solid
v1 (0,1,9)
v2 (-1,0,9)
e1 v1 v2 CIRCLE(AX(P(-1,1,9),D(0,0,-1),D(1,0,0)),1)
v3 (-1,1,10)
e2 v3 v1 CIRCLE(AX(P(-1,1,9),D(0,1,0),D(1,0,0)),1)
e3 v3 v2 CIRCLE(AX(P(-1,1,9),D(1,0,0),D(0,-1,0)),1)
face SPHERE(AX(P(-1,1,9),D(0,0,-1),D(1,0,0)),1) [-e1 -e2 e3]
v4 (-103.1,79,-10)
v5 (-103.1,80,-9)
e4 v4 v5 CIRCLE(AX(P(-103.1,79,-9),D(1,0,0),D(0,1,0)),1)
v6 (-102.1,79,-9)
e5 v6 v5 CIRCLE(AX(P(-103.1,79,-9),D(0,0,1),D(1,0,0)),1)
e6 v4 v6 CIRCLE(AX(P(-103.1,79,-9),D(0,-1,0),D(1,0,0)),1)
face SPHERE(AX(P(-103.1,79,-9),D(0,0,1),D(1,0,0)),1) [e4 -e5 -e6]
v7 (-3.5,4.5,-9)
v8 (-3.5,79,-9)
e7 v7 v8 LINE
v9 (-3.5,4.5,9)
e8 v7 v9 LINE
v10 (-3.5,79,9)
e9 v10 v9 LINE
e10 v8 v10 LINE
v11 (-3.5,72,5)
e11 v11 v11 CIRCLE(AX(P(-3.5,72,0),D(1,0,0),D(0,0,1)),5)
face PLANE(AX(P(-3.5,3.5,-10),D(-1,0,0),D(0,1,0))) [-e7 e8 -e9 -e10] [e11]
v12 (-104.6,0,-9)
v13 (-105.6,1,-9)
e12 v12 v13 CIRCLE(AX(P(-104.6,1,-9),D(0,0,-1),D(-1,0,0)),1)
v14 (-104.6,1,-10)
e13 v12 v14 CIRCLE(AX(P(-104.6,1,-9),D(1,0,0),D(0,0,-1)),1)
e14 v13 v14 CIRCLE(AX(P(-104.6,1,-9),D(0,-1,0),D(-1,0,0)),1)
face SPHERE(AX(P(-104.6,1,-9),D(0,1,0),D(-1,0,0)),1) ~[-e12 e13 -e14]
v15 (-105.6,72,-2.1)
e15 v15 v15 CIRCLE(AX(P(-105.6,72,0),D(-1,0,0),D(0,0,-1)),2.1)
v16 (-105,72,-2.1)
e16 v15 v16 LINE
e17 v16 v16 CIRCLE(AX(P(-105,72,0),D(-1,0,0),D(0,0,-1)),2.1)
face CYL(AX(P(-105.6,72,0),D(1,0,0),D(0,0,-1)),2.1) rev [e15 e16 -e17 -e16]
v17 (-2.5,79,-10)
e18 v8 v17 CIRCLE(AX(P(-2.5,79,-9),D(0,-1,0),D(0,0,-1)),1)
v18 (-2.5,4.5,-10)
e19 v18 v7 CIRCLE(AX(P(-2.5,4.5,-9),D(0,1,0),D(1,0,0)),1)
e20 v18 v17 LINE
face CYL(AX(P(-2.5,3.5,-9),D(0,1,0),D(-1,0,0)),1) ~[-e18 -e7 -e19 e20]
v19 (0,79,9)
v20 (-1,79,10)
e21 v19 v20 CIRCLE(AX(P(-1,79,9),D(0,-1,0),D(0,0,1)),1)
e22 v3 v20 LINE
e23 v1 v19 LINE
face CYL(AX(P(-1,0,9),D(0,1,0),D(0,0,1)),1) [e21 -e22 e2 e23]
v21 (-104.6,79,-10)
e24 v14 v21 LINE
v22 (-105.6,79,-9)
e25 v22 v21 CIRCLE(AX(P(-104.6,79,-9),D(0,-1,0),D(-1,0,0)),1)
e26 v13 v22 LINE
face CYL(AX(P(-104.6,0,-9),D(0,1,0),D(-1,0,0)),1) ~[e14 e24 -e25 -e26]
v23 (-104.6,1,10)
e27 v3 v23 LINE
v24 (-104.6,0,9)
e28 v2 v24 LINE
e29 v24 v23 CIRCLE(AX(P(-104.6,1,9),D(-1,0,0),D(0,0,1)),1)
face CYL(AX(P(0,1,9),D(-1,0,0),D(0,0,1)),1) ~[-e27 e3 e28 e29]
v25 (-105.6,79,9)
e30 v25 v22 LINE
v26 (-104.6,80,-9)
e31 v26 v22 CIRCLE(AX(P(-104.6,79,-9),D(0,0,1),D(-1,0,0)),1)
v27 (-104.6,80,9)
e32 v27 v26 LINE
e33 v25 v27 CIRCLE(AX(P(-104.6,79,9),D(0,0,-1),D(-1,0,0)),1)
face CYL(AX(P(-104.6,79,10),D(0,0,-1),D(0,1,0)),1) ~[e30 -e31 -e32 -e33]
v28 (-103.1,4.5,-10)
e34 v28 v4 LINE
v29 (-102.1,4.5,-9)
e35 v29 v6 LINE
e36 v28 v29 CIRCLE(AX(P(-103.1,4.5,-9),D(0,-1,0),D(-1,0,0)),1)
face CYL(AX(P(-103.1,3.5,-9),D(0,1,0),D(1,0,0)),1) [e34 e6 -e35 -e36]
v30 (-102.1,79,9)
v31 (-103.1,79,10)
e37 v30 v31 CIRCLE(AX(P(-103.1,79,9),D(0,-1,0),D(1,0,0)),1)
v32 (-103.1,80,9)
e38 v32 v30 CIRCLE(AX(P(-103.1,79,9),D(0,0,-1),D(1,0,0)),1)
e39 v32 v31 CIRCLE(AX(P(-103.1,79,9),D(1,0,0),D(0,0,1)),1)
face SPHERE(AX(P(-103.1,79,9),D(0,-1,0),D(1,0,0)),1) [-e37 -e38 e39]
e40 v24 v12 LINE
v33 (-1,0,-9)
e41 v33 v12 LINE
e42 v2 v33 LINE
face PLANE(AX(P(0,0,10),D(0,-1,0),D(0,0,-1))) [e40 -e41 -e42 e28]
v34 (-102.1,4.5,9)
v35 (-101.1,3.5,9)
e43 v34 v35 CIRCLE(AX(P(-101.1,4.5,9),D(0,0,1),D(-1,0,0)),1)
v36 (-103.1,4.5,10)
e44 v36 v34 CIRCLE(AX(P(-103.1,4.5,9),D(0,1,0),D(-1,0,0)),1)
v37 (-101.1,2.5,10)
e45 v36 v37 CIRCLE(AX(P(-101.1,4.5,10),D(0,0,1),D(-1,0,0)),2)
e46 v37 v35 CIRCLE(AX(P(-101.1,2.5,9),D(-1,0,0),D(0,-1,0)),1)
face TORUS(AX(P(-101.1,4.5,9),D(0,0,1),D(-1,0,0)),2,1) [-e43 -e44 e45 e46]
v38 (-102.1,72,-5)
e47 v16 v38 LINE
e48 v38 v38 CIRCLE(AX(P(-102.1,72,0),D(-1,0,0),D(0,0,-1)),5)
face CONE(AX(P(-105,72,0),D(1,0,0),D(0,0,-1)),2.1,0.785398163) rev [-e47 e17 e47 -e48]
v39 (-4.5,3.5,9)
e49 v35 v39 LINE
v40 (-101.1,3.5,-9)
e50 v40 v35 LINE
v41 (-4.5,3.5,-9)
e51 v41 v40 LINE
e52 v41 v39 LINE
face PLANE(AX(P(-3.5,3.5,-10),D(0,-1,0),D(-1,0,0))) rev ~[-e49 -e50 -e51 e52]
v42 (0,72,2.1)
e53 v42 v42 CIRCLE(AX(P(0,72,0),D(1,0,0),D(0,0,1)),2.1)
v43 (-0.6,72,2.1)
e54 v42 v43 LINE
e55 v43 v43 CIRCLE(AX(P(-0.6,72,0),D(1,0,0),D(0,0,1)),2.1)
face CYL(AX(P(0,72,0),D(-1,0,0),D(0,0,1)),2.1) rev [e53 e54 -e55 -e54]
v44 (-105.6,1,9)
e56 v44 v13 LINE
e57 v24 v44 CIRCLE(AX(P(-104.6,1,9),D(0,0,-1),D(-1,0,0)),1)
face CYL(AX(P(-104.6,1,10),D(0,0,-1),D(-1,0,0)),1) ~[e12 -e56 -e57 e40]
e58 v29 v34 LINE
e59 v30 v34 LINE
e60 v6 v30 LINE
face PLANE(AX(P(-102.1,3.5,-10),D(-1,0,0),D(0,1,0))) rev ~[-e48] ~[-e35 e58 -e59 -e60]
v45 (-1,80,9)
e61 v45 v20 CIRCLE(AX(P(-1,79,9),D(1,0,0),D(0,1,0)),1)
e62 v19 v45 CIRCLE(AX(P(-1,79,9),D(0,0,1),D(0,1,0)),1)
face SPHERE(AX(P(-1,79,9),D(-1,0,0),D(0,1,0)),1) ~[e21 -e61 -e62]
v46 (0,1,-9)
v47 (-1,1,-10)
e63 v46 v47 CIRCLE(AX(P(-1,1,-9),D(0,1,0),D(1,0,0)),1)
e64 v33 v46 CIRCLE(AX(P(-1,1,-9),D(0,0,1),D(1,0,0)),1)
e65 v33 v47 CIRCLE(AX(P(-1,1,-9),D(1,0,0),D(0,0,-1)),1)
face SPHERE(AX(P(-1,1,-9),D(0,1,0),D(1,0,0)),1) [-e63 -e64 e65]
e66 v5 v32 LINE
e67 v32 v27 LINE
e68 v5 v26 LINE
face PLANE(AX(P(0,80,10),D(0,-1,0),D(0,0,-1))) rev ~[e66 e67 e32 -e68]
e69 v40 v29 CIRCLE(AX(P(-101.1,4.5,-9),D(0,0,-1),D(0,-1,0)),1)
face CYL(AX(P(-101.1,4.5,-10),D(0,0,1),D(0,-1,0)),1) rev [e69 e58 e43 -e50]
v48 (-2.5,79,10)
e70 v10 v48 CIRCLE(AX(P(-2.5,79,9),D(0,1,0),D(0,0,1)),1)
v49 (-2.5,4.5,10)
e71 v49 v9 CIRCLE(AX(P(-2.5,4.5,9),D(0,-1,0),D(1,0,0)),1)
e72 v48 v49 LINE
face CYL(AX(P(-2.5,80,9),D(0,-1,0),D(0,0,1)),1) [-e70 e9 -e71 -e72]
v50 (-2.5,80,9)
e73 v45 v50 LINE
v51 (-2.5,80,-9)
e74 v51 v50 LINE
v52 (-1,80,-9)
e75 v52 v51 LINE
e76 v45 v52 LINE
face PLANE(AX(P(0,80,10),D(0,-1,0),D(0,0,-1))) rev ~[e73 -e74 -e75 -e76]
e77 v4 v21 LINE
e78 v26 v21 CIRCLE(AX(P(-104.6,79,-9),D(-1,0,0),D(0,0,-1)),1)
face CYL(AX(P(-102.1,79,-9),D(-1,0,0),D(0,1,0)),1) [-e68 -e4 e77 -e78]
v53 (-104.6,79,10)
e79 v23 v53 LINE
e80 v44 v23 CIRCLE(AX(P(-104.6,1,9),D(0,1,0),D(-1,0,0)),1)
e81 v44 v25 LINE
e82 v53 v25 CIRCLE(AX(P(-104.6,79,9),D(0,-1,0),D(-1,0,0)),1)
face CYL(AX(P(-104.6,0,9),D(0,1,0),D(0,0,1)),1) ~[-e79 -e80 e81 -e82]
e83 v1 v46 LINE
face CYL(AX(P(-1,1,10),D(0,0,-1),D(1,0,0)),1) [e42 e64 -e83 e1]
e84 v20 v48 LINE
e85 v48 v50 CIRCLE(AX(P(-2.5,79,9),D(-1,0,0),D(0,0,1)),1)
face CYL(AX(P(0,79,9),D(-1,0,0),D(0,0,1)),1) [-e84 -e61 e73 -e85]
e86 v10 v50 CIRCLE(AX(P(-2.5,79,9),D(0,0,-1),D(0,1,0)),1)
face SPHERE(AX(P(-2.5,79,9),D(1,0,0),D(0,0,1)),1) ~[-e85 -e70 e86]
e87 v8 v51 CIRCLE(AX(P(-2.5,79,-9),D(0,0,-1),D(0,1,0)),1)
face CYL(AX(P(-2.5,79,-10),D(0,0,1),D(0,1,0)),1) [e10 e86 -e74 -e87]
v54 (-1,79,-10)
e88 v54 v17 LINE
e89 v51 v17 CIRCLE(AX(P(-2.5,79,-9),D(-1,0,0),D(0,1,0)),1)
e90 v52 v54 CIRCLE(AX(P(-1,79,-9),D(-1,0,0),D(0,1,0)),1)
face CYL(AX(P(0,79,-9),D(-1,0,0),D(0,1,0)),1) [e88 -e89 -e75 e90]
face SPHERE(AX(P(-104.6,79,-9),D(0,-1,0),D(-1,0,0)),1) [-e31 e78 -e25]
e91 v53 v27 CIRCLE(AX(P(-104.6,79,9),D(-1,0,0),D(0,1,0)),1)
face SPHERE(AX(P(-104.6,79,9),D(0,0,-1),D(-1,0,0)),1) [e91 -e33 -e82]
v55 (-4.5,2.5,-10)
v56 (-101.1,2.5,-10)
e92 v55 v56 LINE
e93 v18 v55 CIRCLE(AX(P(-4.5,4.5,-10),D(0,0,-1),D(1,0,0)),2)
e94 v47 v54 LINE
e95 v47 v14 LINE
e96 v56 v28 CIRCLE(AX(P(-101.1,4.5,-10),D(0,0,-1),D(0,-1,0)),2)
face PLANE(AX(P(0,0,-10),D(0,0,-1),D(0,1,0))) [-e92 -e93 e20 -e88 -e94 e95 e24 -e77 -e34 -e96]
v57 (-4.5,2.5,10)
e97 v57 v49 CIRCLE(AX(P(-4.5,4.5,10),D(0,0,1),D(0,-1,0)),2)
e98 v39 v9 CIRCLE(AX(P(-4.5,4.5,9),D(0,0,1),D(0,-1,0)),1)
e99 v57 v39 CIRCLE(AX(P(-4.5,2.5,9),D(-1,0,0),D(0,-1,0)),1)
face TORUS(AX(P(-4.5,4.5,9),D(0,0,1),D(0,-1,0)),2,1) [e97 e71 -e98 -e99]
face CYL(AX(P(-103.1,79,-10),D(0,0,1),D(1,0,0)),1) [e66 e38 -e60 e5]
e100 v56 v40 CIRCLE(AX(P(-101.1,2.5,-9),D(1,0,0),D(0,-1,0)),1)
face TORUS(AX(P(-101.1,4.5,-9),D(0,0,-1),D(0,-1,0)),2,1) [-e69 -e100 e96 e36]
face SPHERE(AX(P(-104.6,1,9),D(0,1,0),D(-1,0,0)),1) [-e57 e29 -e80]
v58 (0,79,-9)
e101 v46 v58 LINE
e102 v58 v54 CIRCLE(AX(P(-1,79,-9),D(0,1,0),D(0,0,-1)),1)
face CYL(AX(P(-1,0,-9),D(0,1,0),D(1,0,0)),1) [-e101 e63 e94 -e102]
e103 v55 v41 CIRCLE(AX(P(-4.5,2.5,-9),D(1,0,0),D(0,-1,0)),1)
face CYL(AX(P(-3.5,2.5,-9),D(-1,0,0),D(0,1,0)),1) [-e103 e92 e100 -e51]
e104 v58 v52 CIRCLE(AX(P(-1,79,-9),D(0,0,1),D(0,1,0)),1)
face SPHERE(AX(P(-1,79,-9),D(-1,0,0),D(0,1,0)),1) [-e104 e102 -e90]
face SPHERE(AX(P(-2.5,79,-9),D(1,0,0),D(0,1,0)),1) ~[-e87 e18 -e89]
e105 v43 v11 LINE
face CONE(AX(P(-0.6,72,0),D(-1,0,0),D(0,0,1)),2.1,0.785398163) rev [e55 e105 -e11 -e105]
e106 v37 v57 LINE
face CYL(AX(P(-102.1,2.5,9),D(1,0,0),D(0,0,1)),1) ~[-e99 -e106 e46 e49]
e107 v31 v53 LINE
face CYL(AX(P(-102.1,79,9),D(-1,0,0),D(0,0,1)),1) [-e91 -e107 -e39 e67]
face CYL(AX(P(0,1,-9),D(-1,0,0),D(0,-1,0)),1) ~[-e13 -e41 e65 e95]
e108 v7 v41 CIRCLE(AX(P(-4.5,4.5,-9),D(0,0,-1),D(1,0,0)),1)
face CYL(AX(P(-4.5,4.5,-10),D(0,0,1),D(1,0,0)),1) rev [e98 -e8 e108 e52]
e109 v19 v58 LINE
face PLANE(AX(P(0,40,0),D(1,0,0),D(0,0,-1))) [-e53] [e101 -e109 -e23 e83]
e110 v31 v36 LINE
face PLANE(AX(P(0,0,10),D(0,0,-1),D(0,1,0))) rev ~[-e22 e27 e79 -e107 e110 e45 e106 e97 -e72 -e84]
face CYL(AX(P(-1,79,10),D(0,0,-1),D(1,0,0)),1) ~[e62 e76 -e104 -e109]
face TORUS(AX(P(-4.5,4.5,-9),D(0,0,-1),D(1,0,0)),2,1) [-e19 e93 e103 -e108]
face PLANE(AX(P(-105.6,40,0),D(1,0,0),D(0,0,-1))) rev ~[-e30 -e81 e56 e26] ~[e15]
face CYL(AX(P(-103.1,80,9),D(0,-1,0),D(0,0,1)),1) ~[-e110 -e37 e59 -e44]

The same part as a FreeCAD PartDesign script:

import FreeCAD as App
import Part
import Sketcher

V = App.Vector
Q = App.Units.Quantity


def edges_at(feature, points):
    """Names of the edges that pass closest to the given points."""
    edges = feature.Shape.Edges
    near = lambda p: min(range(len(edges)), key=lambda i: edges[i].distToShape(Part.Vertex(*p))[0])
    return sorted({f"Edge{near(p) + 1}" for p in points})

doc = App.newDocument("Part")
body = doc.addObject("PartDesign::Body", "Body")

# Sketch on YZ plane
sketch1 = doc.addObject("Sketcher::SketchObject", "Sketch")
body.addObject(sketch1)
sketch1.AttachmentSupport = (doc.YZ_Plane, [""])
sketch1.MapMode = "FlatFace"
sketch1.addGeometry(Part.LineSegment(V(80, 10, 0), V(0, 10, 0)), False)
sketch1.addGeometry(Part.LineSegment(V(0, 10, 0), V(0, -10, 0)), False)
sketch1.addGeometry(Part.LineSegment(V(0, -10, 0), V(80, -10, 0)), False)
sketch1.addGeometry(Part.LineSegment(V(80, -10, 0), V(80, 10, 0)), False)
sketch1.addConstraint(Sketcher.Constraint("Coincident", 0, 2, 1, 1))
sketch1.addConstraint(Sketcher.Constraint("Coincident", 1, 2, 2, 1))
sketch1.addConstraint(Sketcher.Constraint("Coincident", 2, 2, 3, 1))
sketch1.addConstraint(Sketcher.Constraint("Coincident", 3, 2, 0, 1))
sketch1.addConstraint(Sketcher.Constraint("Horizontal", 0))
sketch1.addConstraint(Sketcher.Constraint("Vertical", 1))
sketch1.addConstraint(Sketcher.Constraint("Horizontal", 2))
sketch1.addConstraint(Sketcher.Constraint("Vertical", 3))
sketch1.addConstraint(Sketcher.Constraint("Symmetric", 0, 2, 1, 2, -1, 1))
sketch1.addConstraint(Sketcher.Constraint("DistanceX", 0, 2, 0, 1, Q("80 mm")))
sketch1.addConstraint(Sketcher.Constraint("DistanceY", 1, 2, 1, 1, Q("20 mm")))
pad1 = doc.addObject("PartDesign::Pad", "Pad")
body.addObject(pad1)
pad1.Profile = sketch1
pad1.Length = 105.6
pad1.Reversed = True

# Sketch on XY plane
sketch2 = doc.addObject("Sketcher::SketchObject", "Sketch001")
body.addObject(sketch2)
sketch2.AttachmentSupport = (doc.XY_Plane, [""])
sketch2.MapMode = "FlatFace"
sketch2.AttachmentOffset = App.Placement(V(0, 0, -10), App.Rotation())
sketch2.addGeometry(Part.LineSegment(V(-3.5, 80, 0), V(-3.5, 3.5, 0)), False)
sketch2.addGeometry(Part.LineSegment(V(-3.5, 3.5, 0), V(-102.1, 3.5, 0)), False)
sketch2.addGeometry(Part.LineSegment(V(-102.1, 3.5, 0), V(-102.1, 80, 0)), False)
sketch2.addGeometry(Part.LineSegment(V(-102.1, 80, 0), V(-3.5, 80, 0)), False)
sketch2.addConstraint(Sketcher.Constraint("Coincident", 0, 2, 1, 1))
sketch2.addConstraint(Sketcher.Constraint("Coincident", 1, 2, 2, 1))
sketch2.addConstraint(Sketcher.Constraint("Coincident", 2, 2, 3, 1))
sketch2.addConstraint(Sketcher.Constraint("Coincident", 3, 2, 0, 1))
sketch2.addConstraint(Sketcher.Constraint("Vertical", 0))
sketch2.addConstraint(Sketcher.Constraint("Horizontal", 1))
sketch2.addConstraint(Sketcher.Constraint("Vertical", 2))
sketch2.addConstraint(Sketcher.Constraint("Horizontal", 3))
sketch2.addConstraint(Sketcher.Constraint("DistanceX", 1, 2, 1, 1, Q("98.6 mm")))
sketch2.addConstraint(Sketcher.Constraint("DistanceY", 0, 2, 0, 1, Q("76.5 mm")))
sketch2.addConstraint(Sketcher.Constraint("DistanceY", -1, 1, 2, 2, Q("80 mm")))
sketch2.addConstraint(Sketcher.Constraint("DistanceX", 0, 2, -1, 1, Q("3.5 mm")))
pocket1 = doc.addObject("PartDesign::Pocket", "Pocket")
body.addObject(pocket1)
pocket1.Profile = sketch2
pocket1.Type = "UpToFirst"
pocket1.Reversed = True

# Sketch on XZ plane
sketch3 = doc.addObject("Sketcher::SketchObject", "Sketch002")
body.addObject(sketch3)
sketch3.AttachmentSupport = (doc.XZ_Plane, [""])
sketch3.MapMode = "FlatFace"
sketch3.AttachmentOffset = App.Placement(V(0, 0, -72), App.Rotation())
sketch3.addGeometry(Part.LineSegment(V(-105.6, 0, 0), V(-102.1, 0, 0)), False)
sketch3.addGeometry(Part.LineSegment(V(-102.1, 0, 0), V(-102.1, -5, 0)), False)
sketch3.addGeometry(Part.LineSegment(V(-102.1, -5, 0), V(-105, -2.1, 0)), False)
sketch3.addGeometry(Part.LineSegment(V(-105, -2.1, 0), V(-105.6, -2.1, 0)), False)
sketch3.addGeometry(Part.LineSegment(V(-105.6, -2.1, 0), V(-105.6, 0, 0)), False)
sketch3.addConstraint(Sketcher.Constraint("Coincident", 0, 2, 1, 1))
sketch3.addConstraint(Sketcher.Constraint("Coincident", 1, 2, 2, 1))
sketch3.addConstraint(Sketcher.Constraint("Coincident", 2, 2, 3, 1))
sketch3.addConstraint(Sketcher.Constraint("Coincident", 3, 2, 4, 1))
sketch3.addConstraint(Sketcher.Constraint("Coincident", 4, 2, 0, 1))
sketch3.addConstraint(Sketcher.Constraint("Horizontal", 0))
sketch3.addConstraint(Sketcher.Constraint("Vertical", 1))
sketch3.addConstraint(Sketcher.Constraint("Horizontal", 3))
sketch3.addConstraint(Sketcher.Constraint("Vertical", 4))
sketch3.addConstraint(Sketcher.Constraint("PointOnObject", 0, 2, -1))
sketch3.addConstraint(Sketcher.Constraint("DistanceY", 1, 2, 1, 1, Q("5 mm")))
sketch3.addConstraint(Sketcher.Constraint("Angle", 2, Q("135 deg")))
sketch3.addConstraint(Sketcher.Constraint("DistanceX", 0, 1, 0, 2, Q("3.5 mm")))
sketch3.addConstraint(Sketcher.Constraint("DistanceX", 3, 2, 3, 1, Q("0.6 mm")))
sketch3.addConstraint(Sketcher.Constraint("DistanceX", 2, 2, -1, 1, Q("105 mm")))
groove = doc.addObject("PartDesign::Groove", "Groove")
body.addObject(groove)
groove.Profile = sketch3
groove.ReferenceAxis = (sketch3, ["H_Axis"])
groove.Angle = 360

# Sketch on XZ plane
sketch4 = doc.addObject("Sketcher::SketchObject", "Sketch003")
body.addObject(sketch4)
sketch4.AttachmentSupport = (doc.XZ_Plane, [""])
sketch4.MapMode = "FlatFace"
sketch4.AttachmentOffset = App.Placement(V(0, 0, -72), App.Rotation())
sketch4.addGeometry(Part.LineSegment(V(0, 0, 0), V(-3.5, 0, 0)), False)
sketch4.addGeometry(Part.LineSegment(V(-3.5, 0, 0), V(-3.5, 5, 0)), False)
sketch4.addGeometry(Part.LineSegment(V(-3.5, 5, 0), V(-0.6, 2.1, 0)), False)
sketch4.addGeometry(Part.LineSegment(V(-0.6, 2.1, 0), V(0, 2.1, 0)), False)
sketch4.addGeometry(Part.LineSegment(V(0, 2.1, 0), V(0, 0, 0)), False)
sketch4.addConstraint(Sketcher.Constraint("Coincident", 0, 2, 1, 1))
sketch4.addConstraint(Sketcher.Constraint("Coincident", 1, 2, 2, 1))
sketch4.addConstraint(Sketcher.Constraint("Coincident", 2, 2, 3, 1))
sketch4.addConstraint(Sketcher.Constraint("Coincident", 3, 2, 4, 1))
sketch4.addConstraint(Sketcher.Constraint("Coincident", 4, 2, 0, 1))
sketch4.addConstraint(Sketcher.Constraint("Horizontal", 0))
sketch4.addConstraint(Sketcher.Constraint("Vertical", 1))
sketch4.addConstraint(Sketcher.Constraint("Horizontal", 3))
sketch4.addConstraint(Sketcher.Constraint("Vertical", 4))
sketch4.addConstraint(Sketcher.Constraint("Coincident", 4, 2, -1, 1))
sketch4.addConstraint(Sketcher.Constraint("DistanceY", 1, 1, 1, 2, Q("5 mm")))
sketch4.addConstraint(Sketcher.Constraint("Angle", 2, Q("-45 deg")))
sketch4.addConstraint(Sketcher.Constraint("DistanceX", 0, 2, 0, 1, Q("3.5 mm")))
sketch4.addConstraint(Sketcher.Constraint("DistanceX", 3, 1, 3, 2, Q("0.6 mm")))
groove2 = doc.addObject("PartDesign::Groove", "Groove001")
body.addObject(groove2)
groove2.Profile = sketch4
groove2.ReferenceAxis = (sketch4, ["H_Axis"])
groove2.Angle = 360
doc.recompute()

fillet = doc.addObject("PartDesign::Fillet", "Fillet")
body.addObject(fillet)
fillet.Base = (groove2, edges_at(groove2, [
    (-105.6, 40, -10),
    (-105.6, 80, 0),
    (-1.75, 80, -10),
    (-1.75, 80, 10),
    (-3.5, 41.75, 10),
    (-3.5, 3.5, 0),
    (-3.5, 80, 0),
    (-102.1, 41.75, 10),
    (-102.1, 80, 0),
    (-52.8, 3.5, 10),
    (-102.1, 3.5, 0),
    (-3.5, 41.75, -10),
    (-52.8, 3.5, -10),
    (-102.1, 41.75, -10),
    (-105.6, 40, 10),
    (0, 80, 0),
    (0, 40, -10),
    (0, 0, 0),
    (0, 40, 10),
    (-105.6, 0, 0),
    (-103.85, 80, 10),
    (-103.85, 80, -10),
    (-52.8, 0, -10),
    (-52.8, 0, 10),
]))
fillet.Radius = 1

doc.recompute()
